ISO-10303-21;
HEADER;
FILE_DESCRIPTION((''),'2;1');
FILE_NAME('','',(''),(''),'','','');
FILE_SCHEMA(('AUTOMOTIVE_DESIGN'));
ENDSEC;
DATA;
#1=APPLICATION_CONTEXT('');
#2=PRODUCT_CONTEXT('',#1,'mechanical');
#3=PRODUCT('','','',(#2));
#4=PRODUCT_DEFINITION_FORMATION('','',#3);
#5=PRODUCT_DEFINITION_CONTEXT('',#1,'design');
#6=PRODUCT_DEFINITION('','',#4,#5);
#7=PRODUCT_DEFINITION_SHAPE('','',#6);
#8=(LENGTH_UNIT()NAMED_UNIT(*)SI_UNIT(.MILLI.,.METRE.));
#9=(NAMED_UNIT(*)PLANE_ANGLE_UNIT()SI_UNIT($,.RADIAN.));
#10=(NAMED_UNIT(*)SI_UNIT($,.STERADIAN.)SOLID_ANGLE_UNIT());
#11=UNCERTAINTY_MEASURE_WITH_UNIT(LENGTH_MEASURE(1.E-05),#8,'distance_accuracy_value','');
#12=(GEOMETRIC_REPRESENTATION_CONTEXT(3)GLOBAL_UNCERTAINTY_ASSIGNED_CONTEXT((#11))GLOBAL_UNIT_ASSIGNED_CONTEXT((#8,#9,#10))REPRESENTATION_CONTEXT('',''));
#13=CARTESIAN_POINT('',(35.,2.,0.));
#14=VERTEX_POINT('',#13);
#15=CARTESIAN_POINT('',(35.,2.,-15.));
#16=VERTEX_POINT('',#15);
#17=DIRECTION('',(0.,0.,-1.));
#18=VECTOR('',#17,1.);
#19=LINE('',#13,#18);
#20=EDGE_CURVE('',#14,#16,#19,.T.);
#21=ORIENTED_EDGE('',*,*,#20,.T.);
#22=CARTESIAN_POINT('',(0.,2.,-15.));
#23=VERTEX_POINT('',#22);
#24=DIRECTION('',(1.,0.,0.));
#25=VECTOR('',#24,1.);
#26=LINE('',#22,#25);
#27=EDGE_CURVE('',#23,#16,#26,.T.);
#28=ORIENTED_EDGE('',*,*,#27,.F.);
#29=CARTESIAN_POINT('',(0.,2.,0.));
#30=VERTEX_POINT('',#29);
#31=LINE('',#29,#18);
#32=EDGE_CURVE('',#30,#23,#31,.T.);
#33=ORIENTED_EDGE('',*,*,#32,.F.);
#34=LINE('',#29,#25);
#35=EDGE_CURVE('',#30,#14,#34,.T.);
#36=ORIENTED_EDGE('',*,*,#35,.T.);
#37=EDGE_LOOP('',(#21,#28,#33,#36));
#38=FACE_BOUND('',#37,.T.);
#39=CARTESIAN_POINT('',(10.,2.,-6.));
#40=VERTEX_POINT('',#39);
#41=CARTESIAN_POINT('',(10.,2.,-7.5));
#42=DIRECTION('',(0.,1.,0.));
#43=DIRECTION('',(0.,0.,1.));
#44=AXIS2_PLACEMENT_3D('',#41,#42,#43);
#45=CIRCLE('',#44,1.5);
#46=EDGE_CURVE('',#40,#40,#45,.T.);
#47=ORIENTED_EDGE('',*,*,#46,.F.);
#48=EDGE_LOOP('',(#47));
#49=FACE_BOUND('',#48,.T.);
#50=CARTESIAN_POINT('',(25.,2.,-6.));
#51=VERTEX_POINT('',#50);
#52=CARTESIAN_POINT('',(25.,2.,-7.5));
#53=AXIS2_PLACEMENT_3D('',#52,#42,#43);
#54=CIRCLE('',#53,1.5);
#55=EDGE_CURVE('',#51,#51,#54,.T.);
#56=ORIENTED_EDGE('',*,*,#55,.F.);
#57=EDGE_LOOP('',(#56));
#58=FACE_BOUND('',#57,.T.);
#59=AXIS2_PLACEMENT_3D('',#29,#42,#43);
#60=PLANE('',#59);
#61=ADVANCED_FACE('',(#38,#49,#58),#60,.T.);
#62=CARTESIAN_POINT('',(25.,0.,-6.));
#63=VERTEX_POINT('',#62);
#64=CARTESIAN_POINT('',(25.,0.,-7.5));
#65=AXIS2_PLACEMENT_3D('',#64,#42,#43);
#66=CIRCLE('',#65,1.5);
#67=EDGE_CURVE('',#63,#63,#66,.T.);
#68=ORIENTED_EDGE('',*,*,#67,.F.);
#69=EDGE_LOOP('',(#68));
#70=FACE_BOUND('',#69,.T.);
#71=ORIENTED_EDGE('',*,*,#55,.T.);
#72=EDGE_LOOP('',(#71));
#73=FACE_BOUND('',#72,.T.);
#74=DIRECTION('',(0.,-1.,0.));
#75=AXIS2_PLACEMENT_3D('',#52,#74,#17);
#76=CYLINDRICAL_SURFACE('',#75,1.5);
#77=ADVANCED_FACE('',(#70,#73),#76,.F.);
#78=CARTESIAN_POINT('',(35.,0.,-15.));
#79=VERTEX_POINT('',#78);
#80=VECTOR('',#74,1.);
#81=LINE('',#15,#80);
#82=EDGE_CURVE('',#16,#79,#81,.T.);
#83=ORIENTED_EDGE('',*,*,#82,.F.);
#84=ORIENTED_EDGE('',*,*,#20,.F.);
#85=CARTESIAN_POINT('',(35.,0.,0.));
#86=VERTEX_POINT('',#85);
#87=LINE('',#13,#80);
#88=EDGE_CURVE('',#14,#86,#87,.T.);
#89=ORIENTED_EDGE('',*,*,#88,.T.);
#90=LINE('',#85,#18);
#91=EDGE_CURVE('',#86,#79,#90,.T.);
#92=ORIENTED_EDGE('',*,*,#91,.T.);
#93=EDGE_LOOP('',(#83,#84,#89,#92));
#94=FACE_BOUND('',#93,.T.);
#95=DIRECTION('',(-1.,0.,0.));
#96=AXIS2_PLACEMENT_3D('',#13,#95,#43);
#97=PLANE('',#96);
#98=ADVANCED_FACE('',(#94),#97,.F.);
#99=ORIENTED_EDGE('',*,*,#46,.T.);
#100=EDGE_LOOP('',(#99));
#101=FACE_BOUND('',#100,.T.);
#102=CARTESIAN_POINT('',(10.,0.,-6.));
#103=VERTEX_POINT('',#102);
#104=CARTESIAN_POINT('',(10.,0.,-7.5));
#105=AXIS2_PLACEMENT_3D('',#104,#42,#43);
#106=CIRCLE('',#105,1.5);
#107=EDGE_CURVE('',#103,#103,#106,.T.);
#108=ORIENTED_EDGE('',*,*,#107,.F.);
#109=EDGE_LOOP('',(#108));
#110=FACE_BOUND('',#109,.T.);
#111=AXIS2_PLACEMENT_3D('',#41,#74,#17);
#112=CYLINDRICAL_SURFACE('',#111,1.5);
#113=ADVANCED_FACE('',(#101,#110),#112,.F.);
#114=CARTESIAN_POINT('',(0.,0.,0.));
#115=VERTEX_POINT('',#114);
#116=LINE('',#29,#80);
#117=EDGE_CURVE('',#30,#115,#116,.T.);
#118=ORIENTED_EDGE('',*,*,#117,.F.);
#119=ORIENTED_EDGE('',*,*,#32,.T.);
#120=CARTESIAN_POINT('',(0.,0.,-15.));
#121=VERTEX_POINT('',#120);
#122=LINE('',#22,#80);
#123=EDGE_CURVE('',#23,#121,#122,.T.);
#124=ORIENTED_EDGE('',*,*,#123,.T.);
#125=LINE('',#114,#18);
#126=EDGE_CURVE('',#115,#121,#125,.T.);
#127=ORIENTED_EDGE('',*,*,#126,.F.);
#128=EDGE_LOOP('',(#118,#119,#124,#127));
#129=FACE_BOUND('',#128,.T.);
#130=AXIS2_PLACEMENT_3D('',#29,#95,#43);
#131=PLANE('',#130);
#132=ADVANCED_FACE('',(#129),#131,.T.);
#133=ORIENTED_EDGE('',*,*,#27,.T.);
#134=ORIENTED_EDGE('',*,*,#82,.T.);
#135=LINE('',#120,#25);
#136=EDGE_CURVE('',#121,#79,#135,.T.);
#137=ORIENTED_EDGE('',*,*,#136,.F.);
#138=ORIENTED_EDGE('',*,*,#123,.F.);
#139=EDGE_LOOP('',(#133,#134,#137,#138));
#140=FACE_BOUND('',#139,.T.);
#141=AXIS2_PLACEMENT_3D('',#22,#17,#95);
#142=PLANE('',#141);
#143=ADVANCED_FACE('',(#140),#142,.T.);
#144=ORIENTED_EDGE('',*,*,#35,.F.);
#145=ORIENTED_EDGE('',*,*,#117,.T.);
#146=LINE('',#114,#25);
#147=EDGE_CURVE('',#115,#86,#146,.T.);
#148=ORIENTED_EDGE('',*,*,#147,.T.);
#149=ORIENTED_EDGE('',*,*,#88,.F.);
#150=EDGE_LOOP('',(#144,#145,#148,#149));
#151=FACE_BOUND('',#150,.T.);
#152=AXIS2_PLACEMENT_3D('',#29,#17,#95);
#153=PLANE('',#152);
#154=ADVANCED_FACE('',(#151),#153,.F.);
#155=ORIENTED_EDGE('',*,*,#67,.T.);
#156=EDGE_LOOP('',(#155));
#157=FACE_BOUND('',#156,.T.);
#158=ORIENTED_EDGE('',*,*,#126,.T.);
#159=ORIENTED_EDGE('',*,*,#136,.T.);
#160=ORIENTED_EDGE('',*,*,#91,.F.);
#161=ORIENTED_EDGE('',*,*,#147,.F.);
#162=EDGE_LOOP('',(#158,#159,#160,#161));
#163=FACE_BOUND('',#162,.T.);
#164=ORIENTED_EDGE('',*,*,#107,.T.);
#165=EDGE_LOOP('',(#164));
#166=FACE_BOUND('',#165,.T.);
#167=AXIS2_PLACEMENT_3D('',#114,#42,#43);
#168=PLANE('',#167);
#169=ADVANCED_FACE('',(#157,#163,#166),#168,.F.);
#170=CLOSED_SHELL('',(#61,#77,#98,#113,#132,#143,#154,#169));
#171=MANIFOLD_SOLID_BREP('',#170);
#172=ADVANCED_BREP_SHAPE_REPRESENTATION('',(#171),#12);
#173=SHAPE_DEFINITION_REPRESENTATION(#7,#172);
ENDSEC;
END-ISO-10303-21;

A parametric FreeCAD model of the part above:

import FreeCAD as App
import Part
import Sketcher
from FreeCAD import Vector
Q = App.Units.Quantity


def add_polygon(sketch, points):
    """Adds a closed chain of lines whose ends are joined by coincident constraints."""
    first, n = sketch.GeometryCount, len(points)
    for a, b in zip(points, points[1:] + points[:1]):
        sketch.addGeometry(Part.LineSegment(App.Vector(*a, 0), App.Vector(*b, 0)), False)
    for i in range(n):
        sketch.addConstraint(Sketcher.Constraint("Coincident", first + i, 2, first + (i + 1) % n, 1))

doc = App.newDocument("Part")
body = doc.addObject("PartDesign::Body", "Body")

# Sketch on XZ plane
sketch1 = body.newObject("Sketcher::SketchObject", "Sketch")
sketch1.AttachmentSupport = (doc.getObject("XZ_Plane"), [""])
sketch1.MapMode = "FlatFace"
add_polygon(sketch1, [(0, 0), (35, 0), (35, -15), (0, -15)])  # lines 0-3
sketch1.addGeometry(Part.Circle(Vector(25, -7.5, 0), Vector(0, 0, 1), 1.5), False)  # 4
sketch1.addGeometry(Part.Circle(Vector(10, -7.5, 0), Vector(0, 0, 1), 1.5), False)  # 5
sketch1.addConstraint([
    Sketcher.Constraint("Horizontal", 0),
    Sketcher.Constraint("Vertical", 1),
    Sketcher.Constraint("Horizontal", 2),
    Sketcher.Constraint("Vertical", 3),
    Sketcher.Constraint("Coincident", 3, 2, -1, 1),
    Sketcher.Constraint("Equal", 4, 5),
    Sketcher.Constraint("Horizontal", 4, 3, 5, 3),
    Sketcher.Constraint("Diameter", 4, Q("3 mm")),
    Sketcher.Constraint("DistanceX", 0, 1, 0, 2, Q("35 mm")),
    Sketcher.Constraint("DistanceY", 1, 2, 1, 1, Q("15 mm")),
    Sketcher.Constraint("DistanceX", -1, 1, 4, 3, Q("25 mm")),
    Sketcher.Constraint("DistanceX", -1, 1, 5, 3, Q("10 mm")),
    Sketcher.Constraint("DistanceY", 4, 3, -1, 1, Q("7.5 mm")),
])
pad1 = body.newObject("PartDesign::Pad", "Pad")
pad1.Profile = sketch1
pad1.Length = 2
pad1.Reversed = True

doc.recompute()
